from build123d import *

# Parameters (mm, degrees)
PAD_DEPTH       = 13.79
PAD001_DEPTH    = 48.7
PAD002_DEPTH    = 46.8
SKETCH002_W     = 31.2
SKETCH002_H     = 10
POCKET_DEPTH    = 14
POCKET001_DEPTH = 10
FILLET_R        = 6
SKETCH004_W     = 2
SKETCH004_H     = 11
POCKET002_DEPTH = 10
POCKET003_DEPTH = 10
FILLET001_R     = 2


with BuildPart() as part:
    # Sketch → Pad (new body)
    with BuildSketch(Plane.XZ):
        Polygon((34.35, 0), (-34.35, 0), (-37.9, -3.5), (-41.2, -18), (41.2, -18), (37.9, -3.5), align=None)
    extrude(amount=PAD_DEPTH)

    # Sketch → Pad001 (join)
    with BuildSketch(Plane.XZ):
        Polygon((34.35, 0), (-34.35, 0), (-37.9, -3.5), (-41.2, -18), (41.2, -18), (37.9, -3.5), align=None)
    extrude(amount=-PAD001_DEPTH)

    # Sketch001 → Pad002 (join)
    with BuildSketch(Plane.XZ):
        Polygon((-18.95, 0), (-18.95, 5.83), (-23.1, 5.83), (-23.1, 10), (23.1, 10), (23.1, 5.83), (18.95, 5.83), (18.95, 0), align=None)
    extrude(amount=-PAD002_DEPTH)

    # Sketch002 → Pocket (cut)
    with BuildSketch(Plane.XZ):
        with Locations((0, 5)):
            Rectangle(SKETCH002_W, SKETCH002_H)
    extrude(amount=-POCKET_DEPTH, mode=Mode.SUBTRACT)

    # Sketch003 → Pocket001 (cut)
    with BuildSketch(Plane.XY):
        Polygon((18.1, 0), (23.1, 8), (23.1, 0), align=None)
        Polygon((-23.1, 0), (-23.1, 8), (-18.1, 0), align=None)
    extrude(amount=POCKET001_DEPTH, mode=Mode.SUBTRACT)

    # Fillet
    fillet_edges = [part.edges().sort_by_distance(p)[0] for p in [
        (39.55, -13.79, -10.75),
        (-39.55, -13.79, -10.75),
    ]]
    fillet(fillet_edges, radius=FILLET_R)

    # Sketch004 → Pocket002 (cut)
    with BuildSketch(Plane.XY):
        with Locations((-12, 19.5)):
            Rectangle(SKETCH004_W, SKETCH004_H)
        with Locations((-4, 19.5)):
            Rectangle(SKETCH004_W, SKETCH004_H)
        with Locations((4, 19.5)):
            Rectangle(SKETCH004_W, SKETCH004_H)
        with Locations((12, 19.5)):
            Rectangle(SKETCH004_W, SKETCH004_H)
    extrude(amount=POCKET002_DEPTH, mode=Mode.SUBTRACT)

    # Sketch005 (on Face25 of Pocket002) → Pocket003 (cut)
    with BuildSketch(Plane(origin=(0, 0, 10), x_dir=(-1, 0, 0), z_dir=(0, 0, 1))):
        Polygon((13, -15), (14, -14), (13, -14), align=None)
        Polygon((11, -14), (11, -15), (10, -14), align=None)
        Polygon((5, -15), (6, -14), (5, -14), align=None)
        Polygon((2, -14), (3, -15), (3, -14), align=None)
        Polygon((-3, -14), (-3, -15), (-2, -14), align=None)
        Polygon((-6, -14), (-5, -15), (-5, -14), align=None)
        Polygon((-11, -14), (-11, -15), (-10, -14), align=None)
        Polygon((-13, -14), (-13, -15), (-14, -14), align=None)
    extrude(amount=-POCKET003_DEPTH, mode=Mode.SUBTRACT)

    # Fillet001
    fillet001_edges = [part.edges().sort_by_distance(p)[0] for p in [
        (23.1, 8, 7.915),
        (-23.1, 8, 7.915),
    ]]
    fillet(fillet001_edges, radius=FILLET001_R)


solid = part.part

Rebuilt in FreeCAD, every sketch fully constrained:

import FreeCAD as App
import Part
import Sketcher

V = App.Vector
Q = App.Units.Quantity


def edges_at(feature, points):
    """Names of the edges that pass closest to the given points."""
    edges = feature.Shape.Edges
    near = lambda p: min(range(len(edges)), key=lambda i: edges[i].distToShape(Part.Vertex(*p))[0])
    return sorted({f"Edge{near(p) + 1}" for p in points})

doc = App.newDocument("Part")
params = doc.addObject("Spreadsheet::Sheet", "Params")
for row, (alias, value) in enumerate([
    ("sketch1_width", "68.7 mm"),
    ("sketch1_width2", "82.4 mm"),
    ("pad1_length", "13.79 mm"),
    ("sketch2_width", "68.7 mm"),
    ("sketch2_width2", "82.4 mm"),
    ("pad2_length", "48.7 mm"),
    ("sketch3_width", "37.9 mm"),
    ("sketch3_width2", "46.2 mm"),
    ("sketch3_height", "5.83 mm"),
    ("pad3_length", "46.8 mm"),
    ("sketch4_height", "10 mm"),
    ("sketch4_width", "31.2 mm"),
    ("pocket1_length", "14 mm"),
    ("sketch5_width", "5 mm"),
    ("sketch5_height", "8 mm"),
    ("pocket2_length", "10 mm"),
    ("fillet_radius", "6 mm"),
    ("sketch6_width", "2 mm"),
    ("sketch6_height", "11 mm"),
    ("pocket3_length", "10 mm"),
    ("sketch7_width", "1 mm"),
    ("pocket4_length", "10 mm"),
    ("fillet2_radius", "2 mm"),
], start=1):
    params.set(f"A{row}", alias)
    params.set(f"B{row}", "=" + value)
    params.setAlias(f"B{row}", alias)

body = doc.addObject("PartDesign::Body", "Body")

# Sketch on XZ plane
sketch1 = body.newObject("Sketcher::SketchObject", "Sketch")
sketch1.AttachmentSupport = (doc.getObject("XZ_Plane"), [""])
sketch1.MapMode = "FlatFace"
sketch1.addGeometry(Part.LineSegment(V(34.4, 0, 0), V(-34.4, 0, 0)), False)
sketch1.addGeometry(Part.LineSegment(V(-34.4, 0, 0), V(-37.9, -3.5, 0)), False)
sketch1.addGeometry(Part.LineSegment(V(-37.9, -3.5, 0), V(-41.2, -18, 0)), False)
sketch1.addGeometry(Part.LineSegment(V(-41.2, -18, 0), V(41.2, -18, 0)), False)
sketch1.addGeometry(Part.LineSegment(V(41.2, -18, 0), V(37.9, -3.5, 0)), False)
sketch1.addGeometry(Part.LineSegment(V(37.9, -3.5, 0), V(34.4, 0, 0)), False)
sketch1.addConstraint(Sketcher.Constraint("Coincident", 0, 2, 1, 1))
sketch1.addConstraint(Sketcher.Constraint("Coincident", 1, 2, 2, 1))
sketch1.addConstraint(Sketcher.Constraint("Coincident", 2, 2, 3, 1))
sketch1.addConstraint(Sketcher.Constraint("Coincident", 3, 2, 4, 1))
sketch1.addConstraint(Sketcher.Constraint("Coincident", 4, 2, 5, 1))
sketch1.addConstraint(Sketcher.Constraint("Coincident", 5, 2, 0, 1))
sketch1.addConstraint(Sketcher.Constraint("Horizontal", 0))
sketch1.addConstraint(Sketcher.Constraint("Horizontal", 3))
sketch1.addConstraint(Sketcher.Constraint("Symmetric", 0, 2, 5, 2, -1, 1))
sketch1.addConstraint(Sketcher.Constraint("Symmetric", 1, 2, 4, 2, -2))
sketch1.addConstraint(Sketcher.Constraint("Equal", 2, 4))
sketch1.addConstraint(Sketcher.Constraint("DistanceX", 0, 2, 0, 1, Q("68.7 mm")))
sketch1.addConstraint(Sketcher.Constraint("DistanceX", 3, 1, 3, 2, Q("82.4 mm")))
sketch1.addConstraint(Sketcher.Constraint("DistanceY", 2, 2, -1, 1, Q("18 mm")))
sketch1.addConstraint(Sketcher.Constraint("DistanceX", 1, 2, -1, 1, Q("37.9 mm")))
sketch1.addConstraint(Sketcher.Constraint("DistanceY", 1, 2, -1, 1, Q("3.5 mm")))
sketch1.setExpression("Constraints[11]", "Params.sketch1_width")
sketch1.setExpression("Constraints[12]", "Params.sketch1_width2")
pad1 = body.newObject("PartDesign::Pad", "Pad")
pad1.Profile = sketch1
pad1.setExpression("Length", "Params.pad1_length")

# Sketch on XZ plane
sketch2 = body.newObject("Sketcher::SketchObject", "Sketch001")
sketch2.AttachmentSupport = (doc.getObject("XZ_Plane"), [""])
sketch2.MapMode = "FlatFace"
sketch2.addGeometry(Part.LineSegment(V(34.4, 0, 0), V(-34.4, 0, 0)), False)
sketch2.addGeometry(Part.LineSegment(V(-34.4, 0, 0), V(-37.9, -3.5, 0)), False)
sketch2.addGeometry(Part.LineSegment(V(-37.9, -3.5, 0), V(-41.2, -18, 0)), False)
sketch2.addGeometry(Part.LineSegment(V(-41.2, -18, 0), V(41.2, -18, 0)), False)
sketch2.addGeometry(Part.LineSegment(V(41.2, -18, 0), V(37.9, -3.5, 0)), False)
sketch2.addGeometry(Part.LineSegment(V(37.9, -3.5, 0), V(34.4, 0, 0)), False)
sketch2.addConstraint(Sketcher.Constraint("Coincident", 0, 2, 1, 1))
sketch2.addConstraint(Sketcher.Constraint("Coincident", 1, 2, 2, 1))
sketch2.addConstraint(Sketcher.Constraint("Coincident", 2, 2, 3, 1))
sketch2.addConstraint(Sketcher.Constraint("Coincident", 3, 2, 4, 1))
sketch2.addConstraint(Sketcher.Constraint("Coincident", 4, 2, 5, 1))
sketch2.addConstraint(Sketcher.Constraint("Coincident", 5, 2, 0, 1))
sketch2.addConstraint(Sketcher.Constraint("Horizontal", 0))
sketch2.addConstraint(Sketcher.Constraint("Horizontal", 3))
sketch2.addConstraint(Sketcher.Constraint("Symmetric", 0, 2, 5, 2, -1, 1))
sketch2.addConstraint(Sketcher.Constraint("Symmetric", 1, 2, 4, 2, -2))
sketch2.addConstraint(Sketcher.Constraint("Equal", 2, 4))
sketch2.addConstraint(Sketcher.Constraint("DistanceX", 0, 2, 0, 1, Q("68.7 mm")))
sketch2.addConstraint(Sketcher.Constraint("DistanceX", 3, 1, 3, 2, Q("82.4 mm")))
sketch2.addConstraint(Sketcher.Constraint("DistanceY", 2, 2, -1, 1, Q("18 mm")))
sketch2.addConstraint(Sketcher.Constraint("DistanceX", 1, 2, -1, 1, Q("37.9 mm")))
sketch2.addConstraint(Sketcher.Constraint("DistanceY", 1, 2, -1, 1, Q("3.5 mm")))
sketch2.setExpression("Constraints[11]", "Params.sketch2_width")
sketch2.setExpression("Constraints[12]", "Params.sketch2_width2")
pad2 = body.newObject("PartDesign::Pad", "Pad001")
pad2.Profile = sketch2
pad2.setExpression("Length", "Params.pad2_length")
pad2.Reversed = True

# Sketch on XZ plane
sketch3 = body.newObject("Sketcher::SketchObject", "Sketch002")
sketch3.AttachmentSupport = (doc.getObject("XZ_Plane"), [""])
sketch3.MapMode = "FlatFace"
sketch3.addGeometry(Part.LineSegment(V(-18.9, 5.8, 0), V(-18.9, 0, 0)), False)
sketch3.addGeometry(Part.LineSegment(V(-18.9, 0, 0), V(18.9, 0, 0)), False)
sketch3.addGeometry(Part.LineSegment(V(18.9, 0, 0), V(18.9, 5.8, 0)), False)
sketch3.addGeometry(Part.LineSegment(V(18.9, 5.8, 0), V(23.1, 5.8, 0)), False)
sketch3.addGeometry(Part.LineSegment(V(23.1, 5.8, 0), V(23.1, 10, 0)), False)
sketch3.addGeometry(Part.LineSegment(V(23.1, 10, 0), V(-23.1, 10, 0)), False)
sketch3.addGeometry(Part.LineSegment(V(-23.1, 10, 0), V(-23.1, 5.8, 0)), False)
sketch3.addGeometry(Part.LineSegment(V(-23.1, 5.8, 0), V(-18.9, 5.8, 0)), False)
sketch3.addConstraint(Sketcher.Constraint("Coincident", 0, 2, 1, 1))
sketch3.addConstraint(Sketcher.Constraint("Coincident", 1, 2, 2, 1))
sketch3.addConstraint(Sketcher.Constraint("Coincident", 2, 2, 3, 1))
sketch3.addConstraint(Sketcher.Constraint("Coincident", 3, 2, 4, 1))
sketch3.addConstraint(Sketcher.Constraint("Coincident", 4, 2, 5, 1))
sketch3.addConstraint(Sketcher.Constraint("Coincident", 5, 2, 6, 1))
sketch3.addConstraint(Sketcher.Constraint("Coincident", 6, 2, 7, 1))
sketch3.addConstraint(Sketcher.Constraint("Coincident", 7, 2, 0, 1))
sketch3.addConstraint(Sketcher.Constraint("Vertical", 0))
sketch3.addConstraint(Sketcher.Constraint("Horizontal", 1))
sketch3.addConstraint(Sketcher.Constraint("Vertical", 2))
sketch3.addConstraint(Sketcher.Constraint("Horizontal", 3))
sketch3.addConstraint(Sketcher.Constraint("Vertical", 4))
sketch3.addConstraint(Sketcher.Constraint("Horizontal", 5))
sketch3.addConstraint(Sketcher.Constraint("Vertical", 6))
sketch3.addConstraint(Sketcher.Constraint("Horizontal", 7))
sketch3.addConstraint(Sketcher.Constraint("Symmetric", 0, 2, 1, 2, -1, 1))
sketch3.addConstraint(Sketcher.Constraint("Symmetric", 3, 2, 6, 2, -2))
sketch3.addConstraint(Sketcher.Constraint("DistanceX", 1, 1, 1, 2, Q("37.9 mm")))
sketch3.addConstraint(Sketcher.Constraint("DistanceX", 5, 2, 5, 1, Q("46.2 mm")))
sketch3.addConstraint(Sketcher.Constraint("DistanceY", -1, 1, 4, 2, Q("10 mm")))
sketch3.addConstraint(Sketcher.Constraint("DistanceY", 0, 2, 0, 1, Q("5.83 mm")))
sketch3.setExpression("Constraints[18]", "Params.sketch3_width")
sketch3.setExpression("Constraints[19]", "Params.sketch3_width2")
sketch3.setExpression("Constraints[21]", "Params.sketch3_height")
pad3 = body.newObject("PartDesign::Pad", "Pad002")
pad3.Profile = sketch3
pad3.setExpression("Length", "Params.pad3_length")
pad3.Reversed = True

# Sketch on XZ plane
sketch4 = body.newObject("Sketcher::SketchObject", "Sketch003")
sketch4.AttachmentSupport = (doc.getObject("XZ_Plane"), [""])
sketch4.MapMode = "FlatFace"
sketch4.addGeometry(Part.LineSegment(V(-16, 10, 0), V(-16, 0, 0)), False)
sketch4.addGeometry(Part.LineSegment(V(-16, 0, 0), V(16, 0, 0)), False)
sketch4.addGeometry(Part.LineSegment(V(16, 0, 0), V(16, 10, 0)), False)
sketch4.addGeometry(Part.LineSegment(V(16, 10, 0), V(-16, 10, 0)), False)
sketch4.addConstraint(Sketcher.Constraint("Coincident", 0, 2, 1, 1))
sketch4.addConstraint(Sketcher.Constraint("Coincident", 1, 2, 2, 1))
sketch4.addConstraint(Sketcher.Constraint("Coincident", 2, 2, 3, 1))
sketch4.addConstraint(Sketcher.Constraint("Coincident", 3, 2, 0, 1))
sketch4.addConstraint(Sketcher.Constraint("Vertical", 0))
sketch4.addConstraint(Sketcher.Constraint("Horizontal", 1))
sketch4.addConstraint(Sketcher.Constraint("Vertical", 2))
sketch4.addConstraint(Sketcher.Constraint("Horizontal", 3))
sketch4.addConstraint(Sketcher.Constraint("Symmetric", 0, 2, 1, 2, -1, 1))
sketch4.addConstraint(Sketcher.Constraint("DistanceY", 0, 2, 0, 1, Q("10 mm")))
sketch4.addConstraint(Sketcher.Constraint("DistanceX", 1, 1, 1, 2, Q("31.2 mm")))
sketch4.setExpression("Constraints[9]", "Params.sketch4_height")
sketch4.setExpression("Constraints[10]", "Params.sketch4_width")
pocket1 = body.newObject("PartDesign::Pocket", "Pocket")
pocket1.Profile = sketch4
pocket1.setExpression("Length", "Params.pocket1_length")

# Sketch on XY plane
sketch5 = body.newObject("Sketcher::SketchObject", "Sketch004")
sketch5.AttachmentSupport = (doc.getObject("XY_Plane"), [""])
sketch5.MapMode = "FlatFace"
sketch5.addGeometry(Part.LineSegment(V(23, 8, 0), V(18, 0, 0)), False)
sketch5.addGeometry(Part.LineSegment(V(18, 0, 0), V(23, 0, 0)), False)
sketch5.addGeometry(Part.LineSegment(V(23, 0, 0), V(23, 8, 0)), False)
sketch5.addGeometry(Part.LineSegment(V(-23, 8, 0), V(-23, 0, 0)), False)
sketch5.addGeometry(Part.LineSegment(V(-23, 0, 0), V(-18, 0, 0)), False)
sketch5.addGeometry(Part.LineSegment(V(-18, 0, 0), V(-23, 8, 0)), False)
sketch5.addConstraint(Sketcher.Constraint("Coincident", 0, 2, 1, 1))
sketch5.addConstraint(Sketcher.Constraint("Coincident", 1, 2, 2, 1))
sketch5.addConstraint(Sketcher.Constraint("Coincident", 2, 2, 0, 1))
sketch5.addConstraint(Sketcher.Constraint("Coincident", 3, 2, 4, 1))
sketch5.addConstraint(Sketcher.Constraint("Coincident", 4, 2, 5, 1))
sketch5.addConstraint(Sketcher.Constraint("Coincident", 5, 2, 3, 1))
sketch5.addConstraint(Sketcher.Constraint("Horizontal", 1))
sketch5.addConstraint(Sketcher.Constraint("Vertical", 2))
sketch5.addConstraint(Sketcher.Constraint("Vertical", 3))
sketch5.addConstraint(Sketcher.Constraint("Horizontal", 4))
sketch5.addConstraint(Sketcher.Constraint("Symmetric", 1, 2, 3, 2, -1, 1))
sketch5.addConstraint(Sketcher.Constraint("Symmetric", 0, 2, 4, 2, -2))
sketch5.addConstraint(Sketcher.Constraint("Horizontal", 2, 2, 5, 2))
sketch5.addConstraint(Sketcher.Constraint("DistanceX", 1, 1, 1, 2, Q("5 mm")))
sketch5.addConstraint(Sketcher.Constraint("DistanceY", 2, 1, 2, 2, Q("8 mm")))
sketch5.addConstraint(Sketcher.Constraint("DistanceX", -1, 1, 0, 2, Q("18.1 mm")))
sketch5.setExpression("Constraints[13]", "Params.sketch5_width")
sketch5.setExpression("Constraints[14]", "Params.sketch5_height")
pocket2 = body.newObject("PartDesign::Pocket", "Pocket001")
pocket2.Profile = sketch5
pocket2.setExpression("Length", "Params.pocket2_length")
pocket2.Reversed = True
doc.recompute()

fillet = body.newObject("PartDesign::Fillet", "Fillet")
fillet.Base = (pocket2, edges_at(pocket2, [(39.55, -13.79, -10.75), (-39.55, -13.79, -10.75)]))
fillet.setExpression("Radius", "Params.fillet_radius")

# Sketch on XY plane
sketch6 = body.newObject("Sketcher::SketchObject", "Sketch005")
sketch6.AttachmentSupport = (doc.getObject("XY_Plane"), [""])
sketch6.MapMode = "FlatFace"
sketch6.addGeometry(Part.LineSegment(V(-13, 25, 0), V(-13, 14, 0)), False)
sketch6.addGeometry(Part.LineSegment(V(-13, 14, 0), V(-11, 14, 0)), False)
sketch6.addGeometry(Part.LineSegment(V(-11, 14, 0), V(-11, 25, 0)), False)
sketch6.addGeometry(Part.LineSegment(V(-11, 25, 0), V(-13, 25, 0)), False)
sketch6.addGeometry(Part.LineSegment(V(-5, 25, 0), V(-5, 14, 0)), False)
sketch6.addGeometry(Part.LineSegment(V(-5, 14, 0), V(-3, 14, 0)), False)
sketch6.addGeometry(Part.LineSegment(V(-3, 14, 0), V(-3, 25, 0)), False)
sketch6.addGeometry(Part.LineSegment(V(-3, 25, 0), V(-5, 25, 0)), False)
sketch6.addGeometry(Part.LineSegment(V(3, 25, 0), V(3, 14, 0)), False)
sketch6.addGeometry(Part.LineSegment(V(3, 14, 0), V(5, 14, 0)), False)
sketch6.addGeometry(Part.LineSegment(V(5, 14, 0), V(5, 25, 0)), False)
sketch6.addGeometry(Part.LineSegment(V(5, 25, 0), V(3, 25, 0)), False)
sketch6.addGeometry(Part.LineSegment(V(11, 25, 0), V(11, 14, 0)), False)
sketch6.addGeometry(Part.LineSegment(V(11, 14, 0), V(13, 14, 0)), False)
sketch6.addGeometry(Part.LineSegment(V(13, 14, 0), V(13, 25, 0)), False)
sketch6.addGeometry(Part.LineSegment(V(13, 25, 0), V(11, 25, 0)), False)
sketch6.addConstraint(Sketcher.Constraint("Coincident", 0, 2, 1, 1))
sketch6.addConstraint(Sketcher.Constraint("Coincident", 1, 2, 2, 1))
sketch6.addConstraint(Sketcher.Constraint("Coincident", 2, 2, 3, 1))
sketch6.addConstraint(Sketcher.Constraint("Coincident", 3, 2, 0, 1))
sketch6.addConstraint(Sketcher.Constraint("Coincident", 4, 2, 5, 1))
sketch6.addConstraint(Sketcher.Constraint("Coincident", 5, 2, 6, 1))
sketch6.addConstraint(Sketcher.Constraint("Coincident", 6, 2, 7, 1))
sketch6.addConstraint(Sketcher.Constraint("Coincident", 7, 2, 4, 1))
sketch6.addConstraint(Sketcher.Constraint("Coincident", 8, 2, 9, 1))
sketch6.addConstraint(Sketcher.Constraint("Coincident", 9, 2, 10, 1))
sketch6.addConstraint(Sketcher.Constraint("Coincident", 10, 2, 11, 1))
sketch6.addConstraint(Sketcher.Constraint("Coincident", 11, 2, 8, 1))
sketch6.addConstraint(Sketcher.Constraint("Coincident", 12, 2, 13, 1))
sketch6.addConstraint(Sketcher.Constraint("Coincident", 13, 2, 14, 1))
sketch6.addConstraint(Sketcher.Constraint("Coincident", 14, 2, 15, 1))
sketch6.addConstraint(Sketcher.Constraint("Coincident", 15, 2, 12, 1))
sketch6.addConstraint(Sketcher.Constraint("Vertical", 0))
sketch6.addConstraint(Sketcher.Constraint("Horizontal", 1))
sketch6.addConstraint(Sketcher.Constraint("Vertical", 2))
sketch6.addConstraint(Sketcher.Constraint("Horizontal", 3))
sketch6.addConstraint(Sketcher.Constraint("Vertical", 4))
sketch6.addConstraint(Sketcher.Constraint("Horizontal", 5))
sketch6.addConstraint(Sketcher.Constraint("Vertical", 6))
sketch6.addConstraint(Sketcher.Constraint("Horizontal", 7))
sketch6.addConstraint(Sketcher.Constraint("Vertical", 8))
sketch6.addConstraint(Sketcher.Constraint("Horizontal", 9))
sketch6.addConstraint(Sketcher.Constraint("Vertical", 10))
sketch6.addConstraint(Sketcher.Constraint("Horizontal", 11))
sketch6.addConstraint(Sketcher.Constraint("Vertical", 12))
sketch6.addConstraint(Sketcher.Constraint("Horizontal", 13))
sketch6.addConstraint(Sketcher.Constraint("Vertical", 14))
sketch6.addConstraint(Sketcher.Constraint("Horizontal", 15))
sketch6.addConstraint(Sketcher.Constraint("Symmetric", 5, 2, 8, 2, -2))
sketch6.addConstraint(Sketcher.Constraint("Symmetric", 7, 2, 10, 2, -2))
sketch6.addConstraint(Sketcher.Constraint("Symmetric", 1, 2, 12, 2, -2))
sketch6.addConstraint(Sketcher.Constraint("Symmetric", 3, 2, 14, 2, -2))
sketch6.addConstraint(Sketcher.Constraint("Horizontal", 1, 2, 4, 2))
sketch6.addConstraint(Sketcher.Constraint("Horizontal", 3, 2, 6, 2))
sketch6.addConstraint(Sketcher.Constraint("Equal", 3, 5))
sketch6.addConstraint(Sketcher.Constraint("DistanceX", 1, 1, 1, 2, Q("2 mm")))
sketch6.addConstraint(Sketcher.Constraint("DistanceY", 0, 2, 0, 1, Q("11 mm")))
sketch6.addConstraint(Sketcher.Constraint("DistanceX", 0, 2, -1, 1, Q("13 mm")))
sketch6.addConstraint(Sketcher.Constraint("DistanceY", -1, 1, 0, 2, Q("14 mm")))
sketch6.addConstraint(Sketcher.Constraint("DistanceX", 4, 2, -1, 1, Q("5 mm")))
sketch6.setExpression("Constraints[39]", "Params.sketch6_width")
sketch6.setExpression("Constraints[40]", "Params.sketch6_height")
pocket3 = body.newObject("PartDesign::Pocket", "Pocket002")
pocket3.Profile = sketch6
pocket3.setExpression("Length", "Params.pocket3_length")
pocket3.Reversed = True

# Sketch on XY plane
sketch7 = body.newObject("Sketcher::SketchObject", "Sketch006")
sketch7.AttachmentSupport = (doc.getObject("XY_Plane"), [""])
sketch7.MapMode = "FlatFace"
sketch7.AttachmentOffset = App.Placement(V(0, 0, 10), App.Rotation())
sketch7.addGeometry(Part.LineSegment(V(-13, 15, 0), V(-14, 14, 0)), False)
sketch7.addGeometry(Part.LineSegment(V(-14, 14, 0), V(-13, 14, 0)), False)
sketch7.addGeometry(Part.LineSegment(V(-13, 14, 0), V(-13, 15, 0)), False)
sketch7.addGeometry(Part.LineSegment(V(-11, 15, 0), V(-11, 14, 0)), False)
sketch7.addGeometry(Part.LineSegment(V(-11, 14, 0), V(-10, 14, 0)), False)
sketch7.addGeometry(Part.LineSegment(V(-10, 14, 0), V(-11, 15, 0)), False)
sketch7.addGeometry(Part.LineSegment(V(-5, 15, 0), V(-6, 14, 0)), False)
sketch7.addGeometry(Part.LineSegment(V(-6, 14, 0), V(-5, 14, 0)), False)
sketch7.addGeometry(Part.LineSegment(V(-5, 14, 0), V(-5, 15, 0)), False)
sketch7.addGeometry(Part.LineSegment(V(-2, 14, 0), V(-3, 15, 0)), False)
sketch7.addGeometry(Part.LineSegment(V(-3, 15, 0), V(-3, 14, 0)), False)
sketch7.addGeometry(Part.LineSegment(V(-3, 14, 0), V(-2, 14, 0)), False)
sketch7.addGeometry(Part.LineSegment(V(3, 14, 0), V(3, 15, 0)), False)
sketch7.addGeometry(Part.LineSegment(V(3, 15, 0), V(2, 14, 0)), False)
sketch7.addGeometry(Part.LineSegment(V(2, 14, 0), V(3, 14, 0)), False)
sketch7.addGeometry(Part.LineSegment(V(6, 14, 0), V(5, 15, 0)), False)
sketch7.addGeometry(Part.LineSegment(V(5, 15, 0), V(5, 14, 0)), False)
sketch7.addGeometry(Part.LineSegment(V(5, 14, 0), V(6, 14, 0)), False)
sketch7.addGeometry(Part.LineSegment(V(11, 14, 0), V(11, 15, 0)), False)
sketch7.addGeometry(Part.LineSegment(V(11, 15, 0), V(10, 14, 0)), False)
sketch7.addGeometry(Part.LineSegment(V(10, 14, 0), V(11, 14, 0)), False)
sketch7.addGeometry(Part.LineSegment(V(13, 15, 0), V(13, 14, 0)), False)
sketch7.addGeometry(Part.LineSegment(V(13, 14, 0), V(14, 14, 0)), False)
sketch7.addGeometry(Part.LineSegment(V(14, 14, 0), V(13, 15, 0)), False)
sketch7.addConstraint(Sketcher.Constraint("Coincident", 0, 2, 1, 1))
sketch7.addConstraint(Sketcher.Constraint("Coincident", 1, 2, 2, 1))
sketch7.addConstraint(Sketcher.Constraint("Coincident", 2, 2, 0, 1))
sketch7.addConstraint(Sketcher.Constraint("Coincident", 3, 2, 4, 1))
sketch7.addConstraint(Sketcher.Constraint("Coincident", 4, 2, 5, 1))
sketch7.addConstraint(Sketcher.Constraint("Coincident", 5, 2, 3, 1))
sketch7.addConstraint(Sketcher.Constraint("Coincident", 6, 2, 7, 1))
sketch7.addConstraint(Sketcher.Constraint("Coincident", 7, 2, 8, 1))
sketch7.addConstraint(Sketcher.Constraint("Coincident", 8, 2, 6, 1))
sketch7.addConstraint(Sketcher.Constraint("Coincident", 9, 2, 10, 1))
sketch7.addConstraint(Sketcher.Constraint("Coincident", 10, 2, 11, 1))
sketch7.addConstraint(Sketcher.Constraint("Coincident", 11, 2, 9, 1))
sketch7.addConstraint(Sketcher.Constraint("Coincident", 12, 2, 13, 1))
sketch7.addConstraint(Sketcher.Constraint("Coincident", 13, 2, 14, 1))
sketch7.addConstraint(Sketcher.Constraint("Coincident", 14, 2, 12, 1))
sketch7.addConstraint(Sketcher.Constraint("Coincident", 15, 2, 16, 1))
sketch7.addConstraint(Sketcher.Constraint("Coincident", 16, 2, 17, 1))
sketch7.addConstraint(Sketcher.Constraint("Coincident", 17, 2, 15, 1))
sketch7.addConstraint(Sketcher.Constraint("Coincident", 18, 2, 19, 1))
sketch7.addConstraint(Sketcher.Constraint("Coincident", 19, 2, 20, 1))
sketch7.addConstraint(Sketcher.Constraint("Coincident", 20, 2, 18, 1))
sketch7.addConstraint(Sketcher.Constraint("Coincident", 21, 2, 22, 1))
sketch7.addConstraint(Sketcher.Constraint("Coincident", 22, 2, 23, 1))
sketch7.addConstraint(Sketcher.Constraint("Coincident", 23, 2, 21, 1))
sketch7.addConstraint(Sketcher.Constraint("Horizontal", 1))
sketch7.addConstraint(Sketcher.Constraint("Vertical", 2))
sketch7.addConstraint(Sketcher.Constraint("Vertical", 3))
sketch7.addConstraint(Sketcher.Constraint("Horizontal", 4))
sketch7.addConstraint(Sketcher.Constraint("Horizontal", 7))
sketch7.addConstraint(Sketcher.Constraint("Vertical", 8))
sketch7.addConstraint(Sketcher.Constraint("Vertical", 10))
sketch7.addConstraint(Sketcher.Constraint("Horizontal", 11))
sketch7.addConstraint(Sketcher.Constraint("Vertical", 12))
sketch7.addConstraint(Sketcher.Constraint("Horizontal", 14))
sketch7.addConstraint(Sketcher.Constraint("Vertical", 16))
sketch7.addConstraint(Sketcher.Constraint("Horizontal", 17))
sketch7.addConstraint(Sketcher.Constraint("Vertical", 18))
sketch7.addConstraint(Sketcher.Constraint("Horizontal", 20))
sketch7.addConstraint(Sketcher.Constraint("Vertical", 21))
sketch7.addConstraint(Sketcher.Constraint("Horizontal", 22))
sketch7.addConstraint(Sketcher.Constraint("Symmetric", 9, 2, 12, 2, -2))
sketch7.addConstraint(Sketcher.Constraint("Symmetric", 11, 2, 13, 2, -2))
sketch7.addConstraint(Sketcher.Constraint("Symmetric", 8, 2, 15, 2, -2))
sketch7.addConstraint(Sketcher.Constraint("Symmetric", 6, 2, 17, 2, -2))
sketch7.addConstraint(Sketcher.Constraint("Symmetric", 5, 2, 18, 2, -2))
sketch7.addConstraint(Sketcher.Constraint("Symmetric", 4, 2, 19, 2, -2))
sketch7.addConstraint(Sketcher.Constraint("Symmetric", 1, 2, 21, 2, -2))
sketch7.addConstraint(Sketcher.Constraint("Perpendicular", 0, 5))
sketch7.addConstraint(Sketcher.Constraint("Perpendicular", 5, 6))
sketch7.addConstraint(Sketcher.Constraint("Perpendicular", 6, 9))
sketch7.addConstraint(Sketcher.Constraint("Perpendicular", 9, 13))
sketch7.addConstraint(Sketcher.Constraint("Perpendicular", 19, 23))
sketch7.addConstraint(Sketcher.Constraint("Horizontal", 1, 2, 3, 2))
sketch7.addConstraint(Sketcher.Constraint("Horizontal", 2, 2, 5, 2))
sketch7.addConstraint(Sketcher.Constraint("Horizontal", 4, 2, 6, 2))
sketch7.addConstraint(Sketcher.Constraint("Horizontal", 5, 2, 8, 2))
sketch7.addConstraint(Sketcher.Constraint("Horizontal", 8, 2, 9, 2))
sketch7.addConstraint(Sketcher.Constraint("Horizontal", 7, 2, 10, 2))
sketch7.addConstraint(Sketcher.Constraint("Horizontal", 18, 2, 23, 2))
sketch7.addConstraint(Sketcher.Constraint("DistanceX", 1, 1, 1, 2, Q("1 mm")))
sketch7.addConstraint(Sketcher.Constraint("DistanceX", 0, 2, -1, 1, Q("14 mm")))
sketch7.addConstraint(Sketcher.Constraint("DistanceY", -1, 1, 0, 2, Q("14 mm")))
sketch7.addConstraint(Sketcher.Constraint("DistanceX", 3, 2, -1, 1, Q("11 mm")))
sketch7.addConstraint(Sketcher.Constraint("DistanceX", 6, 2, -1, 1, Q("6 mm")))
sketch7.addConstraint(Sketcher.Constraint("DistanceX", 9, 2, -1, 1, Q("3 mm")))
sketch7.setExpression("Constraints[59]", "Params.sketch7_width")
pocket4 = body.newObject("PartDesign::Pocket", "Pocket003")
pocket4.Profile = sketch7
pocket4.setExpression("Length", "Params.pocket4_length")
doc.recompute()

fillet2 = body.newObject("PartDesign::Fillet", "Fillet001")
fillet2.Base = (pocket4, edges_at(pocket4, [(23.1, 8, 7.915), (-23.1, 8, 7.915)]))
fillet2.setExpression("Radius", "Params.fillet2_radius")

doc.recompute()
